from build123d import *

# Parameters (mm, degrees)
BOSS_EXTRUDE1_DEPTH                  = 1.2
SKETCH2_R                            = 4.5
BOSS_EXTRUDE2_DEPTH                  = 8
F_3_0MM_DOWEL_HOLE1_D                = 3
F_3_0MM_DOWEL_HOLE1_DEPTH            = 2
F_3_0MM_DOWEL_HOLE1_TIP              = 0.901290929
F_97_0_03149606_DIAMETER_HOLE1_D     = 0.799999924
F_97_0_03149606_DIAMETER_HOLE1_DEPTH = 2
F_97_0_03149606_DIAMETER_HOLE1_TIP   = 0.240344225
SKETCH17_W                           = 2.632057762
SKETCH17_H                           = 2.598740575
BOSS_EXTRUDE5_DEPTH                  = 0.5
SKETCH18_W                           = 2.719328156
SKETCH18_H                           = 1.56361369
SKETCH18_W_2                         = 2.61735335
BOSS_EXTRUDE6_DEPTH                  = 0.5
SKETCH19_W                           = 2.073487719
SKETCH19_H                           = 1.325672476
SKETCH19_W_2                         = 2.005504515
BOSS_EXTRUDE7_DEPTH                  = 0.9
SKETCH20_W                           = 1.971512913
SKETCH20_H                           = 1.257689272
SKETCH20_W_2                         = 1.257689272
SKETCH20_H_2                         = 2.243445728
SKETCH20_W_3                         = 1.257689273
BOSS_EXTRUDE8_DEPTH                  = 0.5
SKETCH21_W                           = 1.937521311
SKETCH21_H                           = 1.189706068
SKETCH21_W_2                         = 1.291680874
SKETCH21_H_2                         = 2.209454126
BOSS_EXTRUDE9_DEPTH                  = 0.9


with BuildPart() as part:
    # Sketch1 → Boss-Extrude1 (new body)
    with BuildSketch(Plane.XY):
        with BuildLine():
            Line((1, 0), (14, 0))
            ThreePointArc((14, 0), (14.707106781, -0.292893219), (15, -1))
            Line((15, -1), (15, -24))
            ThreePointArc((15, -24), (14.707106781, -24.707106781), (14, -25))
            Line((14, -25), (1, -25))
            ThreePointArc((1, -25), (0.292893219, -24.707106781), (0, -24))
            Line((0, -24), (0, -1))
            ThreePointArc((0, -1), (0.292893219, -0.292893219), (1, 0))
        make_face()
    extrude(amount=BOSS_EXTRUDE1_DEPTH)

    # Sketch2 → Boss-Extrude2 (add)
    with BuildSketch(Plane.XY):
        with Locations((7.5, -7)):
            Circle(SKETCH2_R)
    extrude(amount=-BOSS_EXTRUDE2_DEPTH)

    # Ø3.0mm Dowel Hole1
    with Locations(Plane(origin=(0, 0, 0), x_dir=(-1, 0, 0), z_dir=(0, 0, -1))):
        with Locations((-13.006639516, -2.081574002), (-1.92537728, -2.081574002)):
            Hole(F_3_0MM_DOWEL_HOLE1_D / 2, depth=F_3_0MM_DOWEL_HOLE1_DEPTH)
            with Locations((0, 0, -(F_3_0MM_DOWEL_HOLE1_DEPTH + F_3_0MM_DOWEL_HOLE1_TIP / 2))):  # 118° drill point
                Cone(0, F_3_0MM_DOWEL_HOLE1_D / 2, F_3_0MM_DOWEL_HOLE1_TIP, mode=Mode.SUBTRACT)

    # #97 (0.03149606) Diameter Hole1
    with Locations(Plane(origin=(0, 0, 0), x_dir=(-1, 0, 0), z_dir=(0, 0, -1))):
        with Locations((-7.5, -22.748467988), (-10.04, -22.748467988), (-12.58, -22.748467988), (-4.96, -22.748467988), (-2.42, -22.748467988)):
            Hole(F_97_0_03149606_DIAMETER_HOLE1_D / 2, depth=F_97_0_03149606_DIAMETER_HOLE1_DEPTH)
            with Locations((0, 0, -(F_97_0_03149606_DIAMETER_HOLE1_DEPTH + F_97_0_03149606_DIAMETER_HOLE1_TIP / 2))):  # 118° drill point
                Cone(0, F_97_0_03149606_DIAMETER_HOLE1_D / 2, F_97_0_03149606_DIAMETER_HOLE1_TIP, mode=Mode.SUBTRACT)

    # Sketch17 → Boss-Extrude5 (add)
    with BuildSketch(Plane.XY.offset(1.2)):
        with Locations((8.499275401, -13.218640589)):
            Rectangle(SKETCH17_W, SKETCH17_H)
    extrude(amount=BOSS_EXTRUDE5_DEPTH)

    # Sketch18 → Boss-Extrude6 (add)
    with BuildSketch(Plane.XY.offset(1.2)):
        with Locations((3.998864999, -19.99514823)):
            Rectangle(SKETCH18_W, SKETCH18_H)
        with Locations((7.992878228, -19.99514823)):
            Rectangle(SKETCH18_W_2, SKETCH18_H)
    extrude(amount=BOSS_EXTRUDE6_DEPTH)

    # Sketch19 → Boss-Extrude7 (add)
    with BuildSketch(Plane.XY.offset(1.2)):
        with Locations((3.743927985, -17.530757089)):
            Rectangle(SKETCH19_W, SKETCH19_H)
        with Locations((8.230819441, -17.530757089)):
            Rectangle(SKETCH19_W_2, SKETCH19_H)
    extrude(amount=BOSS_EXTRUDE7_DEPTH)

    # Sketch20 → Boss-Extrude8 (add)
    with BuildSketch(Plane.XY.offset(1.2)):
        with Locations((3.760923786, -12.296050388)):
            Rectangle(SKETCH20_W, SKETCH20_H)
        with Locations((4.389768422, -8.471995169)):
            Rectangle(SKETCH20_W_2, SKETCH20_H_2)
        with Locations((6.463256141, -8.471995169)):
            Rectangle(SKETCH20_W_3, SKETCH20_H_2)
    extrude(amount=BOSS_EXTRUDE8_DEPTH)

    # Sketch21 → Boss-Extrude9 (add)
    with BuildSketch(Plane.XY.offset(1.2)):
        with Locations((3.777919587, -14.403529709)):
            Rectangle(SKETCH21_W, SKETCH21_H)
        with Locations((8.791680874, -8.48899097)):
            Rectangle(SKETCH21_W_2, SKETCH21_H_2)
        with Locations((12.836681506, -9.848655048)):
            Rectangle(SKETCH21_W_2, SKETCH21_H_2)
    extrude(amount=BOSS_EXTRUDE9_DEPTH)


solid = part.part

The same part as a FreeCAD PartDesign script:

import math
import FreeCAD as App
import Part
import Sketcher

V = App.Vector

doc = App.newDocument("Part")
body = doc.addObject("PartDesign::Body", "Body")

# Sketch on XY plane
sketch1 = body.newObject("Sketcher::SketchObject", "Sketch")
sketch1.AttachmentSupport = (doc.getObject("XY_Plane"), [""])
sketch1.MapMode = "FlatFace"
sketch1.addGeometry(Part.LineSegment(V(14, 0, 0), V(1, 0, 0)), False)
sketch1.addGeometry(Part.ArcOfCircle(Part.Circle(V(1, -1, 0), V(0, 0, 1), 1), math.radians(90), math.radians(180)), False)
sketch1.addGeometry(Part.LineSegment(V(0, -1, 0), V(0, -24, 0)), False)
sketch1.addGeometry(Part.ArcOfCircle(Part.Circle(V(1, -24, 0), V(0, 0, 1), 1), math.radians(-180), math.radians(-90)), False)
sketch1.addGeometry(Part.LineSegment(V(1, -25, 0), V(14, -25, 0)), False)
sketch1.addGeometry(Part.ArcOfCircle(Part.Circle(V(14, -24, 0), V(0, 0, 1), 1), math.radians(-90), math.radians(0)), False)
sketch1.addGeometry(Part.LineSegment(V(15, -24, 0), V(15, -1, 0)), False)
sketch1.addGeometry(Part.ArcOfCircle(Part.Circle(V(14, -1, 0), V(0, 0, 1), 1), math.radians(0), math.radians(90)), False)
sketch1.addConstraint(Sketcher.Constraint("Tangent", 0, 2, 1, 1))
sketch1.addConstraint(Sketcher.Constraint("Tangent", 1, 2, 2, 1))
sketch1.addConstraint(Sketcher.Constraint("Tangent", 2, 2, 3, 1))
sketch1.addConstraint(Sketcher.Constraint("Tangent", 3, 2, 4, 1))
sketch1.addConstraint(Sketcher.Constraint("Tangent", 4, 2, 5, 1))
sketch1.addConstraint(Sketcher.Constraint("Tangent", 5, 2, 6, 1))
sketch1.addConstraint(Sketcher.Constraint("Tangent", 6, 2, 7, 1))
sketch1.addConstraint(Sketcher.Constraint("Tangent", 7, 2, 0, 1))
sketch1.addConstraint(Sketcher.Constraint("Horizontal", 0))
sketch1.addConstraint(Sketcher.Constraint("Vertical", 2))
sketch1.addConstraint(Sketcher.Constraint("Horizontal", 4))
sketch1.addConstraint(Sketcher.Constraint("Vertical", 6))
sketch1.addConstraint(Sketcher.Constraint("Equal", 1, 3))
sketch1.addConstraint(Sketcher.Constraint("Equal", 3, 5))
sketch1.addConstraint(Sketcher.Constraint("Equal", 5, 7))
sketch1.addConstraint(Sketcher.Constraint("PointOnObject", 0, 2, -1))
sketch1.addConstraint(Sketcher.Constraint("PointOnObject", 1, 2, -2))
sketch1.addConstraint(Sketcher.Constraint("Radius", 1, 1.0))
sketch1.addConstraint(Sketcher.Constraint("DistanceX", 0, 2, 0, 1, 13.0))
sketch1.addConstraint(Sketcher.Constraint("DistanceY", 2, 2, 2, 1, 23.0))
pad1 = body.newObject("PartDesign::Pad", "Pad")
pad1.Profile = sketch1
pad1.Length = 1.2

# Sketch on XY plane
sketch2 = body.newObject("Sketcher::SketchObject", "Sketch001")
sketch2.AttachmentSupport = (doc.getObject("XY_Plane"), [""])
sketch2.MapMode = "FlatFace"
sketch2.addGeometry(Part.Circle(V(7.5, -7, 0), V(0, 0, 1), 4.5), False)
sketch2.addConstraint(Sketcher.Constraint("Diameter", 0, 9.0))
sketch2.addConstraint(Sketcher.Constraint("DistanceY", 0, 3, -1, 1, 7.0))
sketch2.addConstraint(Sketcher.Constraint("DistanceX", -1, 1, 0, 3, 7.5))
pad2 = body.newObject("PartDesign::Pad", "Pad001")
pad2.Profile = sketch2
pad2.Length = 8
pad2.Reversed = True

# Sketch on XY plane
sketch3 = body.newObject("Sketcher::SketchObject", "Sketch002")
sketch3.AttachmentSupport = (doc.getObject("XY_Plane"), [""])
sketch3.MapMode = "FlatFace"
sketch3.addGeometry(Part.Circle(V(13, -2.1, 0), V(0, 0, 1), 1.5), False)
sketch3.addGeometry(Part.Circle(V(1.9, -2.1, 0), V(0, 0, 1), 1.5), False)
sketch3.addConstraint(Sketcher.Constraint("Equal", 0, 1))
sketch3.addConstraint(Sketcher.Constraint("Horizontal", 0, 3, 1, 3))
sketch3.addConstraint(Sketcher.Constraint("Diameter", 0, 3.0))
sketch3.addConstraint(Sketcher.Constraint("DistanceX", -1, 1, 0, 3, 13.00664))
sketch3.addConstraint(Sketcher.Constraint("DistanceY", 0, 3, -1, 1, 2.081574))
sketch3.addConstraint(Sketcher.Constraint("DistanceX", -1, 1, 1, 3, 1.925377))
doc.recompute()
hole = body.newObject("PartDesign::Hole", "Hole")
hole.Profile = sketch3
hole.ThreadType = "None"
hole.Diameter = 3
hole.DepthType = "Dimension"
hole.Depth = 2
hole.DrillPoint = "Angled"
hole.DrillPointAngle = 118
hole.Reversed = True

# Sketch on XY plane
sketch4 = body.newObject("Sketcher::SketchObject", "Sketch003")
sketch4.AttachmentSupport = (doc.getObject("XY_Plane"), [""])
sketch4.MapMode = "FlatFace"
sketch4.addGeometry(Part.Circle(V(7.5, -22.75, 0), V(0, 0, 1), 0.4), False)
sketch4.addGeometry(Part.Circle(V(10.04, -22.75, 0), V(0, 0, 1), 0.4), False)
sketch4.addGeometry(Part.Circle(V(12.58, -22.75, 0), V(0, 0, 1), 0.4), False)
sketch4.addGeometry(Part.Circle(V(4.96, -22.75, 0), V(0, 0, 1), 0.4), False)
sketch4.addGeometry(Part.Circle(V(2.42, -22.75, 0), V(0, 0, 1), 0.4), False)
sketch4.addConstraint(Sketcher.Constraint("Equal", 0, 1))
sketch4.addConstraint(Sketcher.Constraint("Equal", 1, 2))
sketch4.addConstraint(Sketcher.Constraint("Equal", 2, 3))
sketch4.addConstraint(Sketcher.Constraint("Equal", 3, 4))
sketch4.addConstraint(Sketcher.Constraint("Horizontal", 0, 3, 1, 3))
sketch4.addConstraint(Sketcher.Constraint("Horizontal", 1, 3, 2, 3))
sketch4.addConstraint(Sketcher.Constraint("Horizontal", 2, 3, 3, 3))
sketch4.addConstraint(Sketcher.Constraint("Horizontal", 3, 3, 4, 3))
sketch4.addConstraint(Sketcher.Constraint("Diameter", 0, 0.8))
sketch4.addConstraint(Sketcher.Constraint("DistanceX", -1, 1, 0, 3, 7.5))
sketch4.addConstraint(Sketcher.Constraint("DistanceX", -1, 1, 1, 3, 10.04))
sketch4.addConstraint(Sketcher.Constraint("DistanceX", -1, 1, 2, 3, 12.58))
sketch4.addConstraint(Sketcher.Constraint("DistanceX", -1, 1, 3, 3, 4.96))
sketch4.addConstraint(Sketcher.Constraint("DistanceX", -1, 1, 4, 3, 2.42))
sketch4.addConstraint(Sketcher.Constraint("DistanceY", 0, 3, -1, 1, 22.748468))
doc.recompute()
hole2 = body.newObject("PartDesign::Hole", "Hole001")
hole2.Profile = sketch4
hole2.ThreadType = "None"
hole2.Diameter = 0.8
hole2.DepthType = "Dimension"
hole2.Depth = 2
hole2.DrillPoint = "Angled"
hole2.DrillPointAngle = 118
hole2.Reversed = True

# Sketch on XY plane
sketch5 = body.newObject("Sketcher::SketchObject", "Sketch004")
sketch5.AttachmentSupport = (doc.getObject("XY_Plane"), [""])
sketch5.MapMode = "FlatFace"
sketch5.AttachmentOffset = App.Placement(V(0, 0, 1.2), App.Rotation())
sketch5.addGeometry(Part.LineSegment(V(7.2, -11.9, 0), V(7.2, -14.5, 0)), False)
sketch5.addGeometry(Part.LineSegment(V(7.2, -14.5, 0), V(9.8, -14.5, 0)), False)
sketch5.addGeometry(Part.LineSegment(V(9.8, -14.5, 0), V(9.8, -11.9, 0)), False)
sketch5.addGeometry(Part.LineSegment(V(9.8, -11.9, 0), V(7.2, -11.9, 0)), False)
sketch5.addConstraint(Sketcher.Constraint("Coincident", 0, 2, 1, 1))
sketch5.addConstraint(Sketcher.Constraint("Coincident", 1, 2, 2, 1))
sketch5.addConstraint(Sketcher.Constraint("Coincident", 2, 2, 3, 1))
sketch5.addConstraint(Sketcher.Constraint("Coincident", 3, 2, 0, 1))
sketch5.addConstraint(Sketcher.Constraint("Vertical", 0))
sketch5.addConstraint(Sketcher.Constraint("Horizontal", 1))
sketch5.addConstraint(Sketcher.Constraint("Vertical", 2))
sketch5.addConstraint(Sketcher.Constraint("Horizontal", 3))
sketch5.addConstraint(Sketcher.Constraint("DistanceY", 0, 2, 0, 1, 2.598741))
sketch5.addConstraint(Sketcher.Constraint("DistanceX", 1, 1, 1, 2, 2.632058))
sketch5.addConstraint(Sketcher.Constraint("DistanceY", 0, 2, -1, 1, 14.518011))
sketch5.addConstraint(Sketcher.Constraint("DistanceX", -1, 1, 0, 2, 7.183247))
pad3 = body.newObject("PartDesign::Pad", "Pad002")
pad3.Profile = sketch5
pad3.Length = 0.5

# Sketch on XY plane
sketch6 = body.newObject("Sketcher::SketchObject", "Sketch005")
sketch6.AttachmentSupport = (doc.getObject("XY_Plane"), [""])
sketch6.MapMode = "FlatFace"
sketch6.AttachmentOffset = App.Placement(V(0, 0, 1.2), App.Rotation())
sketch6.addGeometry(Part.LineSegment(V(2.6, -19.2, 0), V(2.6, -20.8, 0)), False)
sketch6.addGeometry(Part.LineSegment(V(2.6, -20.8, 0), V(5.4, -20.8, 0)), False)
sketch6.addGeometry(Part.LineSegment(V(5.4, -20.8, 0), V(5.4, -19.2, 0)), False)
sketch6.addGeometry(Part.LineSegment(V(5.4, -19.2, 0), V(2.6, -19.2, 0)), False)
sketch6.addGeometry(Part.LineSegment(V(6.7, -19.2, 0), V(6.7, -20.8, 0)), False)
sketch6.addGeometry(Part.LineSegment(V(6.7, -20.8, 0), V(9.3, -20.8, 0)), False)
sketch6.addGeometry(Part.LineSegment(V(9.3, -20.8, 0), V(9.3, -19.2, 0)), False)
sketch6.addGeometry(Part.LineSegment(V(9.3, -19.2, 0), V(6.7, -19.2, 0)), False)
sketch6.addConstraint(Sketcher.Constraint("Coincident", 0, 2, 1, 1))
sketch6.addConstraint(Sketcher.Constraint("Coincident", 1, 2, 2, 1))
sketch6.addConstraint(Sketcher.Constraint("Coincident", 2, 2, 3, 1))
sketch6.addConstraint(Sketcher.Constraint("Coincident", 3, 2, 0, 1))
sketch6.addConstraint(Sketcher.Constraint("Coincident", 4, 2, 5, 1))
sketch6.addConstraint(Sketcher.Constraint("Coincident", 5, 2, 6, 1))
sketch6.addConstraint(Sketcher.Constraint("Coincident", 6, 2, 7, 1))
sketch6.addConstraint(Sketcher.Constraint("Coincident", 7, 2, 4, 1))
sketch6.addConstraint(Sketcher.Constraint("Vertical", 0))
sketch6.addConstraint(Sketcher.Constraint("Horizontal", 1))
sketch6.addConstraint(Sketcher.Constraint("Vertical", 2))
sketch6.addConstraint(Sketcher.Constraint("Horizontal", 3))
sketch6.addConstraint(Sketcher.Constraint("Vertical", 4))
sketch6.addConstraint(Sketcher.Constraint("Horizontal", 5))
sketch6.addConstraint(Sketcher.Constraint("Vertical", 6))
sketch6.addConstraint(Sketcher.Constraint("Horizontal", 7))
sketch6.addConstraint(Sketcher.Constraint("Horizontal", 1, 2, 4, 2))
sketch6.addConstraint(Sketcher.Constraint("Horizontal", 3, 2, 6, 2))
sketch6.addConstraint(Sketcher.Constraint("DistanceX", 0, 2, 4, 2, 4.045001))
sketch6.addConstraint(Sketcher.Constraint("DistanceX", 1, 1, 1, 2, 2.719328))
sketch6.addConstraint(Sketcher.Constraint("DistanceX", -1, 1, 0, 2, 2.639201))
sketch6.addConstraint(Sketcher.Constraint("DistanceX", 5, 1, 5, 2, 2.617353))
sketch6.addConstraint(Sketcher.Constraint("DistanceY", 0, 2, 0, 1, 1.563614))
sketch6.addConstraint(Sketcher.Constraint("DistanceY", 2, 2, -1, 1, 19.213341))
pad4 = body.newObject("PartDesign::Pad", "Pad003")
pad4.Profile = sketch6
pad4.Length = 0.5

# Sketch on XY plane
sketch7 = body.newObject("Sketcher::SketchObject", "Sketch006")
sketch7.AttachmentSupport = (doc.getObject("XY_Plane"), [""])
sketch7.MapMode = "FlatFace"
sketch7.AttachmentOffset = App.Placement(V(0, 0, 1.2), App.Rotation())
sketch7.addGeometry(Part.LineSegment(V(2.7, -16.9, 0), V(2.7, -18.2, 0)), False)
sketch7.addGeometry(Part.LineSegment(V(2.7, -18.2, 0), V(4.8, -18.2, 0)), False)
sketch7.addGeometry(Part.LineSegment(V(4.8, -18.2, 0), V(4.8, -16.9, 0)), False)
sketch7.addGeometry(Part.LineSegment(V(4.8, -16.9, 0), V(2.7, -16.9, 0)), False)
sketch7.addGeometry(Part.LineSegment(V(7.2, -16.9, 0), V(7.2, -18.2, 0)), False)
sketch7.addGeometry(Part.LineSegment(V(7.2, -18.2, 0), V(9.2, -18.2, 0)), False)
sketch7.addGeometry(Part.LineSegment(V(9.2, -18.2, 0), V(9.2, -16.9, 0)), False)
sketch7.addGeometry(Part.LineSegment(V(9.2, -16.9, 0), V(7.2, -16.9, 0)), False)
sketch7.addConstraint(Sketcher.Constraint("Coincident", 0, 2, 1, 1))
sketch7.addConstraint(Sketcher.Constraint("Coincident", 1, 2, 2, 1))
sketch7.addConstraint(Sketcher.Constraint("Coincident", 2, 2, 3, 1))
sketch7.addConstraint(Sketcher.Constraint("Coincident", 3, 2, 0, 1))
sketch7.addConstraint(Sketcher.Constraint("Coincident", 4, 2, 5, 1))
sketch7.addConstraint(Sketcher.Constraint("Coincident", 5, 2, 6, 1))
sketch7.addConstraint(Sketcher.Constraint("Coincident", 6, 2, 7, 1))
sketch7.addConstraint(Sketcher.Constraint("Coincident", 7, 2, 4, 1))
sketch7.addConstraint(Sketcher.Constraint("Vertical", 0))
sketch7.addConstraint(Sketcher.Constraint("Horizontal", 1))
sketch7.addConstraint(Sketcher.Constraint("Vertical", 2))
sketch7.addConstraint(Sketcher.Constraint("Horizontal", 3))
sketch7.addConstraint(Sketcher.Constraint("Vertical", 4))
sketch7.addConstraint(Sketcher.Constraint("Horizontal", 5))
sketch7.addConstraint(Sketcher.Constraint("Vertical", 6))
sketch7.addConstraint(Sketcher.Constraint("Horizontal", 7))
sketch7.addConstraint(Sketcher.Constraint("Horizontal", 1, 2, 4, 2))
sketch7.addConstraint(Sketcher.Constraint("Horizontal", 3, 2, 6, 2))
sketch7.addConstraint(Sketcher.Constraint("DistanceX", 1, 2, 5, 2, 4.4529))
sketch7.addConstraint(Sketcher.Constraint("DistanceX", 1, 1, 1, 2, 2.073488))
sketch7.addConstraint(Sketcher.Constraint("DistanceX", 5, 1, 5, 2, 2.005505))
sketch7.addConstraint(Sketcher.Constraint("DistanceY", 0, 2, 0, 1, 1.325672))
sketch7.addConstraint(Sketcher.Constraint("DistanceX", -1, 1, 1, 2, 4.780672))
sketch7.addConstraint(Sketcher.Constraint("DistanceY", 2, 2, -1, 1, 16.867921))
pad5 = body.newObject("PartDesign::Pad", "Pad004")
pad5.Profile = sketch7
pad5.Length = 0.9

# Sketch on XY plane
sketch8 = body.newObject("Sketcher::SketchObject", "Sketch007")
sketch8.AttachmentSupport = (doc.getObject("XY_Plane"), [""])
sketch8.MapMode = "FlatFace"
sketch8.AttachmentOffset = App.Placement(V(0, 0, 1.2), App.Rotation())
sketch8.addGeometry(Part.LineSegment(V(2.8, -11.7, 0), V(2.8, -12.9, 0)), False)
sketch8.addGeometry(Part.LineSegment(V(2.8, -12.9, 0), V(4.7, -12.9, 0)), False)
sketch8.addGeometry(Part.LineSegment(V(4.7, -12.9, 0), V(4.7, -11.7, 0)), False)
sketch8.addGeometry(Part.LineSegment(V(4.7, -11.7, 0), V(2.8, -11.7, 0)), False)
sketch8.addGeometry(Part.LineSegment(V(3.8, -7.4, 0), V(3.8, -9.6, 0)), False)
sketch8.addGeometry(Part.LineSegment(V(3.8, -9.6, 0), V(5, -9.6, 0)), False)
sketch8.addGeometry(Part.LineSegment(V(5, -9.6, 0), V(5, -7.4, 0)), False)
sketch8.addGeometry(Part.LineSegment(V(5, -7.4, 0), V(3.8, -7.4, 0)), False)
sketch8.addGeometry(Part.LineSegment(V(5.8, -7.4, 0), V(5.8, -9.6, 0)), False)
sketch8.addGeometry(Part.LineSegment(V(5.8, -9.6, 0), V(7.1, -9.6, 0)), False)
sketch8.addGeometry(Part.LineSegment(V(7.1, -9.6, 0), V(7.1, -7.4, 0)), False)
sketch8.addGeometry(Part.LineSegment(V(7.1, -7.4, 0), V(5.8, -7.4, 0)), False)
sketch8.addConstraint(Sketcher.Constraint("Coincident", 0, 2, 1, 1))
sketch8.addConstraint(Sketcher.Constraint("Coincident", 1, 2, 2, 1))
sketch8.addConstraint(Sketcher.Constraint("Coincident", 2, 2, 3, 1))
sketch8.addConstraint(Sketcher.Constraint("Coincident", 3, 2, 0, 1))
sketch8.addConstraint(Sketcher.Constraint("Coincident", 4, 2, 5, 1))
sketch8.addConstraint(Sketcher.Constraint("Coincident", 5, 2, 6, 1))
sketch8.addConstraint(Sketcher.Constraint("Coincident", 6, 2, 7, 1))
sketch8.addConstraint(Sketcher.Constraint("Coincident", 7, 2, 4, 1))
sketch8.addConstraint(Sketcher.Constraint("Coincident", 8, 2, 9, 1))
sketch8.addConstraint(Sketcher.Constraint("Coincident", 9, 2, 10, 1))
sketch8.addConstraint(Sketcher.Constraint("Coincident", 10, 2, 11, 1))
sketch8.addConstraint(Sketcher.Constraint("Coincident", 11, 2, 8, 1))
sketch8.addConstraint(Sketcher.Constraint("Vertical", 0))
sketch8.addConstraint(Sketcher.Constraint("Horizontal", 1))
sketch8.addConstraint(Sketcher.Constraint("Vertical", 2))
sketch8.addConstraint(Sketcher.Constraint("Horizontal", 3))
sketch8.addConstraint(Sketcher.Constraint("Vertical", 4))
sketch8.addConstraint(Sketcher.Constraint("Horizontal", 5))
sketch8.addConstraint(Sketcher.Constraint("Vertical", 6))
sketch8.addConstraint(Sketcher.Constraint("Horizontal", 7))
sketch8.addConstraint(Sketcher.Constraint("Vertical", 8))
sketch8.addConstraint(Sketcher.Constraint("Horizontal", 9))
sketch8.addConstraint(Sketcher.Constraint("Vertical", 10))
sketch8.addConstraint(Sketcher.Constraint("Horizontal", 11))
sketch8.addConstraint(Sketcher.Constraint("Horizontal", 5, 2, 8, 2))
sketch8.addConstraint(Sketcher.Constraint("Horizontal", 7, 2, 10, 2))
sketch8.addConstraint(Sketcher.Constraint("Equal", 7, 9))
sketch8.addConstraint(Sketcher.Constraint("Equal", 11, 0))
sketch8.addConstraint(Sketcher.Constraint("DistanceX", 5, 1, 5, 2, 1.257689))
sketch8.addConstraint(Sketcher.Constraint("DistanceX", -1, 1, 9, 2, 7.092101))
sketch8.addConstraint(Sketcher.Constraint("DistanceX", 5, 2, 8, 2, 0.815798))
sketch8.addConstraint(Sketcher.Constraint("DistanceX", 1, 1, 1, 2, 1.971513))
sketch8.addConstraint(Sketcher.Constraint("DistanceY", 4, 2, 4, 1, 2.243446))
sketch8.addConstraint(Sketcher.Constraint("DistanceX", -1, 1, 1, 2, 4.74668))
sketch8.addConstraint(Sketcher.Constraint("DistanceY", 4, 2, -1, 1, 9.593718))
sketch8.addConstraint(Sketcher.Constraint("DistanceY", 0, 2, -1, 1, 12.924895))
pad6 = body.newObject("PartDesign::Pad", "Pad005")
pad6.Profile = sketch8
pad6.Length = 0.5

# Sketch on XY plane
sketch9 = body.newObject("Sketcher::SketchObject", "Sketch008")
sketch9.AttachmentSupport = (doc.getObject("XY_Plane"), [""])
sketch9.MapMode = "FlatFace"
sketch9.AttachmentOffset = App.Placement(V(0, 0, 1.2), App.Rotation())
sketch9.addGeometry(Part.LineSegment(V(2.8, -13.8, 0), V(2.8, -15, 0)), False)
sketch9.addGeometry(Part.LineSegment(V(2.8, -15, 0), V(4.7, -15, 0)), False)
sketch9.addGeometry(Part.LineSegment(V(4.7, -15, 0), V(4.7, -13.8, 0)), False)
sketch9.addGeometry(Part.LineSegment(V(4.7, -13.8, 0), V(2.8, -13.8, 0)), False)
sketch9.addGeometry(Part.LineSegment(V(8.1, -7.4, 0), V(8.1, -9.6, 0)), False)
sketch9.addGeometry(Part.LineSegment(V(8.1, -9.6, 0), V(9.4, -9.6, 0)), False)
sketch9.addGeometry(Part.LineSegment(V(9.4, -9.6, 0), V(9.4, -7.4, 0)), False)
sketch9.addGeometry(Part.LineSegment(V(9.4, -7.4, 0), V(8.1, -7.4, 0)), False)
sketch9.addGeometry(Part.LineSegment(V(12.2, -8.7, 0), V(12.2, -11, 0)), False)
sketch9.addGeometry(Part.LineSegment(V(12.2, -11, 0), V(13.5, -11, 0)), False)
sketch9.addGeometry(Part.LineSegment(V(13.5, -11, 0), V(13.5, -8.7, 0)), False)
sketch9.addGeometry(Part.LineSegment(V(13.5, -8.7, 0), V(12.2, -8.7, 0)), False)
sketch9.addConstraint(Sketcher.Constraint("Coincident", 0, 2, 1, 1))
sketch9.addConstraint(Sketcher.Constraint("Coincident", 1, 2, 2, 1))
sketch9.addConstraint(Sketcher.Constraint("Coincident", 2, 2, 3, 1))
sketch9.addConstraint(Sketcher.Constraint("Coincident", 3, 2, 0, 1))
sketch9.addConstraint(Sketcher.Constraint("Coincident", 4, 2, 5, 1))
sketch9.addConstraint(Sketcher.Constraint("Coincident", 5, 2, 6, 1))
sketch9.addConstraint(Sketcher.Constraint("Coincident", 6, 2, 7, 1))
sketch9.addConstraint(Sketcher.Constraint("Coincident", 7, 2, 4, 1))
sketch9.addConstraint(Sketcher.Constraint("Coincident", 8, 2, 9, 1))
sketch9.addConstraint(Sketcher.Constraint("Coincident", 9, 2, 10, 1))
sketch9.addConstraint(Sketcher.Constraint("Coincident", 10, 2, 11, 1))
sketch9.addConstraint(Sketcher.Constraint("Coincident", 11, 2, 8, 1))
sketch9.addConstraint(Sketcher.Constraint("Vertical", 0))
sketch9.addConstraint(Sketcher.Constraint("Horizontal", 1))
sketch9.addConstraint(Sketcher.Constraint("Vertical", 2))
sketch9.addConstraint(Sketcher.Constraint("Horizontal", 3))
sketch9.addConstraint(Sketcher.Constraint("Vertical", 4))
sketch9.addConstraint(Sketcher.Constraint("Horizontal", 5))
sketch9.addConstraint(Sketcher.Constraint("Vertical", 6))
sketch9.addConstraint(Sketcher.Constraint("Horizontal", 7))
sketch9.addConstraint(Sketcher.Constraint("Vertical", 8))
sketch9.addConstraint(Sketcher.Constraint("Horizontal", 9))
sketch9.addConstraint(Sketcher.Constraint("Vertical", 10))
sketch9.addConstraint(Sketcher.Constraint("Horizontal", 11))
sketch9.addConstraint(Sketcher.Constraint("Equal", 7, 9))
sketch9.addConstraint(Sketcher.Constraint("Equal", 6, 8))
sketch9.addConstraint(Sketcher.Constraint("DistanceX", 4, 2, 8, 2, 4.045001))
sketch9.addConstraint(Sketcher.Constraint("DistanceX", 1, 1, 1, 2, 1.937521))
sketch9.addConstraint(Sketcher.Constraint("DistanceX", 5, 1, 5, 2, 1.291681))
sketch9.addConstraint(Sketcher.Constraint("DistanceY", 0, 2, 0, 1, 1.189706))
sketch9.addConstraint(Sketcher.Constraint("DistanceY", 4, 2, 4, 1, 2.209454))
sketch9.addConstraint(Sketcher.Constraint("DistanceX", -1, 1, 0, 2, 2.809159))
sketch9.addConstraint(Sketcher.Constraint("DistanceX", -1, 1, 4, 2, 8.14584))
sketch9.addConstraint(Sketcher.Constraint("DistanceY", 4, 2, -1, 1, 9.593718))
sketch9.addConstraint(Sketcher.Constraint("DistanceY", 2, 2, 4, 2, 4.214959))
sketch9.addConstraint(Sketcher.Constraint("DistanceY", 8, 2, 6, 2, 3.569118))
pad7 = body.newObject("PartDesign::Pad", "Pad006")
pad7.Profile = sketch9
pad7.Length = 0.9

doc.recompute()
